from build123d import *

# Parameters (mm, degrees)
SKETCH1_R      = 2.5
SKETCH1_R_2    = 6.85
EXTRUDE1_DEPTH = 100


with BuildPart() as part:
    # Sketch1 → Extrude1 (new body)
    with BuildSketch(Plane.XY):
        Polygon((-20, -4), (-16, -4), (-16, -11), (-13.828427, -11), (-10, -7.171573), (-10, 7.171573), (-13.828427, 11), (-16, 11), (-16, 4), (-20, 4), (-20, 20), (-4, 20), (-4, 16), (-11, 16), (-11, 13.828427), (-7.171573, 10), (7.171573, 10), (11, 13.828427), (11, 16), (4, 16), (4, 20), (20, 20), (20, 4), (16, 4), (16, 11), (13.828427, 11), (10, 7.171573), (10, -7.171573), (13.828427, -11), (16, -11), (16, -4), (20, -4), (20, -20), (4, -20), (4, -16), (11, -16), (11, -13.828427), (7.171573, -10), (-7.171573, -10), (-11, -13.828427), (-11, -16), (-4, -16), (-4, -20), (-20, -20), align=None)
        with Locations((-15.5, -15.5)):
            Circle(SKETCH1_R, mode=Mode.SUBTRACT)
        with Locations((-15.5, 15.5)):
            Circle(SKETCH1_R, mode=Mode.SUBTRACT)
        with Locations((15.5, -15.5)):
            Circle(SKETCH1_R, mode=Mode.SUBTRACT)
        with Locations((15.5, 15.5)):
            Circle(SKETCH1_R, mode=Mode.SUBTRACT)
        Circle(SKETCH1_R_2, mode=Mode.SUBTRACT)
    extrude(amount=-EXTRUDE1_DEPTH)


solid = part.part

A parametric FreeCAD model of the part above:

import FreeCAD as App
import Part
import Sketcher
Q = App.Units.Quantity


def add_polygon(sketch, points):
    """Adds a closed chain of lines whose ends are joined by coincident constraints."""
    first, n = sketch.GeometryCount, len(points)
    for a, b in zip(points, points[1:] + points[:1]):
        sketch.addGeometry(Part.LineSegment(App.Vector(*a, 0), App.Vector(*b, 0)), False)
    for i in range(n):
        sketch.addConstraint(Sketcher.Constraint("Coincident", first + i, 2, first + (i + 1) % n, 1))

doc = App.newDocument("Part")
body = doc.addObject("PartDesign::Body", "Body")

# Sketch on XY plane
sketch1 = doc.addObject("Sketcher::SketchObject", "Sketch")
body.addObject(sketch1)
sketch1.AttachmentSupport = (doc.XY_Plane, [""])
sketch1.MapMode = "FlatFace"
add_polygon(sketch1, [(-16, -4), (-20, -4), (-20, -20), (-4, -20), (-4, -16), (-11, -16), (-11, -13.8), (-7.2, -10), (7.2, -10), (11, -13.8), (11, -16), (4, -16), (4, -20), (20, -20), (20, -4), (16, -4), (16, -11), (13.8, -11), (10, -7.2), (10, 7.2), (13.8, 11), (16, 11), (16, 4), (20, 4), (20, 20), (4, 20), (4, 16), (11, 16), (11, 13.8), (7.2, 10), (-7.2, 10), (-11, 13.8), (-11, 16), (-4, 16), (-4, 20), (-20, 20), (-20, 4), (-16, 4), (-16, 11), (-13.8, 11), (-10, 7.2), (-10, -7.2), (-13.8, -11), (-16, -11)])  # lines 0-43
sketch1.addGeometry(Part.Circle(App.Vector(15.5, -15.5, 0), App.Vector(0, 0, 1), 2.5), False)  # 44
sketch1.addGeometry(Part.Circle(App.Vector(-15.5, -15.5, 0), App.Vector(0, 0, 1), 2.5), False)  # 45
sketch1.addGeometry(Part.Circle(App.Vector(15.5, 15.5, 0), App.Vector(0, 0, 1), 2.5), False)  # 46
sketch1.addGeometry(Part.Circle(App.Vector(0, 0, 0), App.Vector(0, 0, 1), 6.8), False)  # 47
sketch1.addGeometry(Part.Circle(App.Vector(-15.5, 15.5, 0), App.Vector(0, 0, 1), 2.5), False)  # 48
sketch1.addConstraint([
    Sketcher.Constraint("Horizontal", 0),
    Sketcher.Constraint("Vertical", 1),
    Sketcher.Constraint("Horizontal", 2),
    Sketcher.Constraint("Vertical", 3),
    Sketcher.Constraint("Horizontal", 4),
    Sketcher.Constraint("Vertical", 5),
    Sketcher.Constraint("Horizontal", 7),
    Sketcher.Constraint("Vertical", 9),
    Sketcher.Constraint("Horizontal", 10),
    Sketcher.Constraint("Vertical", 11),
    Sketcher.Constraint("Horizontal", 12),
    Sketcher.Constraint("Vertical", 13),
    Sketcher.Constraint("Horizontal", 14),
    Sketcher.Constraint("Vertical", 15),
    Sketcher.Constraint("Horizontal", 16),
    Sketcher.Constraint("Vertical", 18),
    Sketcher.Constraint("Horizontal", 20),
    Sketcher.Constraint("Vertical", 21),
    Sketcher.Constraint("Horizontal", 22),
    Sketcher.Constraint("Vertical", 23),
    Sketcher.Constraint("Horizontal", 24),
    Sketcher.Constraint("Vertical", 25),
    Sketcher.Constraint("Horizontal", 26),
    Sketcher.Constraint("Vertical", 27),
    Sketcher.Constraint("Horizontal", 29),
    Sketcher.Constraint("Vertical", 31),
    Sketcher.Constraint("Horizontal", 32),
    Sketcher.Constraint("Vertical", 33),
    Sketcher.Constraint("Horizontal", 34),
    Sketcher.Constraint("Vertical", 35),
    Sketcher.Constraint("Horizontal", 36),
    Sketcher.Constraint("Vertical", 37),
    Sketcher.Constraint("Horizontal", 38),
    Sketcher.Constraint("Vertical", 40),
    Sketcher.Constraint("Horizontal", 42),
    Sketcher.Constraint("Vertical", 43),
    Sketcher.Constraint("Coincident", 47, 3, -1, 1),
    Sketcher.Constraint("Equal", 44, 45),
    Sketcher.Constraint("Equal", 45, 46),
    Sketcher.Constraint("Equal", 46, 48),
    Sketcher.Constraint("Symmetric", 45, 3, 46, 3, -1, 1),
    Sketcher.Constraint("Symmetric", 44, 3, 48, 3, -1, 1),
    Sketcher.Constraint("Symmetric", 0, 2, 22, 2, -1, 1),
    Sketcher.Constraint("Symmetric", 2, 2, 24, 2, -1, 1),
    Sketcher.Constraint("Symmetric", 4, 2, 26, 2, -1, 1),
    Sketcher.Constraint("Symmetric", 6, 2, 28, 2, -1, 1),
    Sketcher.Constraint("Symmetric", 8, 2, 30, 2, -1, 1),
    Sketcher.Constraint("Symmetric", 10, 2, 32, 2, -1, 1),
    Sketcher.Constraint("Symmetric", 12, 2, 34, 2, -1, 1),
    Sketcher.Constraint("Symmetric", 14, 2, 36, 2, -1, 1),
    Sketcher.Constraint("Symmetric", 16, 2, 38, 2, -1, 1),
    Sketcher.Constraint("Symmetric", 17, 2, 39, 2, -1, 1),
    Sketcher.Constraint("Symmetric", 19, 2, 41, 2, -1, 1),
    Sketcher.Constraint("Symmetric", 44, 3, 45, 3, -2),
    Sketcher.Constraint("Symmetric", 5, 2, 8, 2, -2),
    Sketcher.Constraint("Symmetric", 3, 2, 10, 2, -2),
    Sketcher.Constraint("Symmetric", 1, 2, 12, 2, -2),
    Sketcher.Constraint("Symmetric", 21, 2, 36, 2, -2),
    Sketcher.Constraint("Symmetric", 19, 2, 38, 2, -2),
    Sketcher.Constraint("Perpendicular", 6, 8),
    Sketcher.Constraint("Parallel", 8, 17),
    Sketcher.Constraint("Perpendicular", 17, 19),
    Sketcher.Constraint("Parallel", 19, 28),
    Sketcher.Constraint("Perpendicular", 28, 30),
    Sketcher.Constraint("Perpendicular", 39, 41),
    Sketcher.Constraint("Horizontal", 18, 2, 39, 2),
    Sketcher.Constraint("Vertical", 37, 2, 42, 2),
    Sketcher.Constraint("Equal", 34, 1),
    Sketcher.Constraint("Equal", 36, 3),
    Sketcher.Constraint("Equal", 42, 5),
    Sketcher.Constraint("Equal", 32, 15),
    Sketcher.Constraint("Equal", 29, 18),
    Sketcher.Constraint("Equal", 8, 17),
    Sketcher.Constraint("Diameter", 44, Q("5 mm")),
    Sketcher.Constraint("Diameter", 47, Q("13.7 mm")),
    Sketcher.Constraint("DistanceX", 0, 2, 0, 1, Q("4 mm")),
    Sketcher.Constraint("DistanceX", 2, 1, 2, 2, Q("16 mm")),
    Sketcher.Constraint("DistanceX", 4, 2, 4, 1, Q("7 mm")),
    Sketcher.Constraint("DistanceX", 0, 2, -1, 1, Q("20 mm")),
    Sketcher.Constraint("DistanceY", 6, 2, -1, 1, Q("10 mm")),
    Sketcher.Constraint("DistanceX", 45, 3, 44, 3, Q("31 mm")),
    Sketcher.Constraint("DistanceY", 44, 3, 46, 3, Q("31 mm")),
    Sketcher.Constraint("DistanceX", 7, 1, 7, 2, Q("14.343146 mm")),
])
pad1 = doc.addObject("PartDesign::Pad", "Pad")
body.addObject(pad1)
pad1.Profile = sketch1
pad1.Length = 100
pad1.Reversed = True

doc.recompute()
